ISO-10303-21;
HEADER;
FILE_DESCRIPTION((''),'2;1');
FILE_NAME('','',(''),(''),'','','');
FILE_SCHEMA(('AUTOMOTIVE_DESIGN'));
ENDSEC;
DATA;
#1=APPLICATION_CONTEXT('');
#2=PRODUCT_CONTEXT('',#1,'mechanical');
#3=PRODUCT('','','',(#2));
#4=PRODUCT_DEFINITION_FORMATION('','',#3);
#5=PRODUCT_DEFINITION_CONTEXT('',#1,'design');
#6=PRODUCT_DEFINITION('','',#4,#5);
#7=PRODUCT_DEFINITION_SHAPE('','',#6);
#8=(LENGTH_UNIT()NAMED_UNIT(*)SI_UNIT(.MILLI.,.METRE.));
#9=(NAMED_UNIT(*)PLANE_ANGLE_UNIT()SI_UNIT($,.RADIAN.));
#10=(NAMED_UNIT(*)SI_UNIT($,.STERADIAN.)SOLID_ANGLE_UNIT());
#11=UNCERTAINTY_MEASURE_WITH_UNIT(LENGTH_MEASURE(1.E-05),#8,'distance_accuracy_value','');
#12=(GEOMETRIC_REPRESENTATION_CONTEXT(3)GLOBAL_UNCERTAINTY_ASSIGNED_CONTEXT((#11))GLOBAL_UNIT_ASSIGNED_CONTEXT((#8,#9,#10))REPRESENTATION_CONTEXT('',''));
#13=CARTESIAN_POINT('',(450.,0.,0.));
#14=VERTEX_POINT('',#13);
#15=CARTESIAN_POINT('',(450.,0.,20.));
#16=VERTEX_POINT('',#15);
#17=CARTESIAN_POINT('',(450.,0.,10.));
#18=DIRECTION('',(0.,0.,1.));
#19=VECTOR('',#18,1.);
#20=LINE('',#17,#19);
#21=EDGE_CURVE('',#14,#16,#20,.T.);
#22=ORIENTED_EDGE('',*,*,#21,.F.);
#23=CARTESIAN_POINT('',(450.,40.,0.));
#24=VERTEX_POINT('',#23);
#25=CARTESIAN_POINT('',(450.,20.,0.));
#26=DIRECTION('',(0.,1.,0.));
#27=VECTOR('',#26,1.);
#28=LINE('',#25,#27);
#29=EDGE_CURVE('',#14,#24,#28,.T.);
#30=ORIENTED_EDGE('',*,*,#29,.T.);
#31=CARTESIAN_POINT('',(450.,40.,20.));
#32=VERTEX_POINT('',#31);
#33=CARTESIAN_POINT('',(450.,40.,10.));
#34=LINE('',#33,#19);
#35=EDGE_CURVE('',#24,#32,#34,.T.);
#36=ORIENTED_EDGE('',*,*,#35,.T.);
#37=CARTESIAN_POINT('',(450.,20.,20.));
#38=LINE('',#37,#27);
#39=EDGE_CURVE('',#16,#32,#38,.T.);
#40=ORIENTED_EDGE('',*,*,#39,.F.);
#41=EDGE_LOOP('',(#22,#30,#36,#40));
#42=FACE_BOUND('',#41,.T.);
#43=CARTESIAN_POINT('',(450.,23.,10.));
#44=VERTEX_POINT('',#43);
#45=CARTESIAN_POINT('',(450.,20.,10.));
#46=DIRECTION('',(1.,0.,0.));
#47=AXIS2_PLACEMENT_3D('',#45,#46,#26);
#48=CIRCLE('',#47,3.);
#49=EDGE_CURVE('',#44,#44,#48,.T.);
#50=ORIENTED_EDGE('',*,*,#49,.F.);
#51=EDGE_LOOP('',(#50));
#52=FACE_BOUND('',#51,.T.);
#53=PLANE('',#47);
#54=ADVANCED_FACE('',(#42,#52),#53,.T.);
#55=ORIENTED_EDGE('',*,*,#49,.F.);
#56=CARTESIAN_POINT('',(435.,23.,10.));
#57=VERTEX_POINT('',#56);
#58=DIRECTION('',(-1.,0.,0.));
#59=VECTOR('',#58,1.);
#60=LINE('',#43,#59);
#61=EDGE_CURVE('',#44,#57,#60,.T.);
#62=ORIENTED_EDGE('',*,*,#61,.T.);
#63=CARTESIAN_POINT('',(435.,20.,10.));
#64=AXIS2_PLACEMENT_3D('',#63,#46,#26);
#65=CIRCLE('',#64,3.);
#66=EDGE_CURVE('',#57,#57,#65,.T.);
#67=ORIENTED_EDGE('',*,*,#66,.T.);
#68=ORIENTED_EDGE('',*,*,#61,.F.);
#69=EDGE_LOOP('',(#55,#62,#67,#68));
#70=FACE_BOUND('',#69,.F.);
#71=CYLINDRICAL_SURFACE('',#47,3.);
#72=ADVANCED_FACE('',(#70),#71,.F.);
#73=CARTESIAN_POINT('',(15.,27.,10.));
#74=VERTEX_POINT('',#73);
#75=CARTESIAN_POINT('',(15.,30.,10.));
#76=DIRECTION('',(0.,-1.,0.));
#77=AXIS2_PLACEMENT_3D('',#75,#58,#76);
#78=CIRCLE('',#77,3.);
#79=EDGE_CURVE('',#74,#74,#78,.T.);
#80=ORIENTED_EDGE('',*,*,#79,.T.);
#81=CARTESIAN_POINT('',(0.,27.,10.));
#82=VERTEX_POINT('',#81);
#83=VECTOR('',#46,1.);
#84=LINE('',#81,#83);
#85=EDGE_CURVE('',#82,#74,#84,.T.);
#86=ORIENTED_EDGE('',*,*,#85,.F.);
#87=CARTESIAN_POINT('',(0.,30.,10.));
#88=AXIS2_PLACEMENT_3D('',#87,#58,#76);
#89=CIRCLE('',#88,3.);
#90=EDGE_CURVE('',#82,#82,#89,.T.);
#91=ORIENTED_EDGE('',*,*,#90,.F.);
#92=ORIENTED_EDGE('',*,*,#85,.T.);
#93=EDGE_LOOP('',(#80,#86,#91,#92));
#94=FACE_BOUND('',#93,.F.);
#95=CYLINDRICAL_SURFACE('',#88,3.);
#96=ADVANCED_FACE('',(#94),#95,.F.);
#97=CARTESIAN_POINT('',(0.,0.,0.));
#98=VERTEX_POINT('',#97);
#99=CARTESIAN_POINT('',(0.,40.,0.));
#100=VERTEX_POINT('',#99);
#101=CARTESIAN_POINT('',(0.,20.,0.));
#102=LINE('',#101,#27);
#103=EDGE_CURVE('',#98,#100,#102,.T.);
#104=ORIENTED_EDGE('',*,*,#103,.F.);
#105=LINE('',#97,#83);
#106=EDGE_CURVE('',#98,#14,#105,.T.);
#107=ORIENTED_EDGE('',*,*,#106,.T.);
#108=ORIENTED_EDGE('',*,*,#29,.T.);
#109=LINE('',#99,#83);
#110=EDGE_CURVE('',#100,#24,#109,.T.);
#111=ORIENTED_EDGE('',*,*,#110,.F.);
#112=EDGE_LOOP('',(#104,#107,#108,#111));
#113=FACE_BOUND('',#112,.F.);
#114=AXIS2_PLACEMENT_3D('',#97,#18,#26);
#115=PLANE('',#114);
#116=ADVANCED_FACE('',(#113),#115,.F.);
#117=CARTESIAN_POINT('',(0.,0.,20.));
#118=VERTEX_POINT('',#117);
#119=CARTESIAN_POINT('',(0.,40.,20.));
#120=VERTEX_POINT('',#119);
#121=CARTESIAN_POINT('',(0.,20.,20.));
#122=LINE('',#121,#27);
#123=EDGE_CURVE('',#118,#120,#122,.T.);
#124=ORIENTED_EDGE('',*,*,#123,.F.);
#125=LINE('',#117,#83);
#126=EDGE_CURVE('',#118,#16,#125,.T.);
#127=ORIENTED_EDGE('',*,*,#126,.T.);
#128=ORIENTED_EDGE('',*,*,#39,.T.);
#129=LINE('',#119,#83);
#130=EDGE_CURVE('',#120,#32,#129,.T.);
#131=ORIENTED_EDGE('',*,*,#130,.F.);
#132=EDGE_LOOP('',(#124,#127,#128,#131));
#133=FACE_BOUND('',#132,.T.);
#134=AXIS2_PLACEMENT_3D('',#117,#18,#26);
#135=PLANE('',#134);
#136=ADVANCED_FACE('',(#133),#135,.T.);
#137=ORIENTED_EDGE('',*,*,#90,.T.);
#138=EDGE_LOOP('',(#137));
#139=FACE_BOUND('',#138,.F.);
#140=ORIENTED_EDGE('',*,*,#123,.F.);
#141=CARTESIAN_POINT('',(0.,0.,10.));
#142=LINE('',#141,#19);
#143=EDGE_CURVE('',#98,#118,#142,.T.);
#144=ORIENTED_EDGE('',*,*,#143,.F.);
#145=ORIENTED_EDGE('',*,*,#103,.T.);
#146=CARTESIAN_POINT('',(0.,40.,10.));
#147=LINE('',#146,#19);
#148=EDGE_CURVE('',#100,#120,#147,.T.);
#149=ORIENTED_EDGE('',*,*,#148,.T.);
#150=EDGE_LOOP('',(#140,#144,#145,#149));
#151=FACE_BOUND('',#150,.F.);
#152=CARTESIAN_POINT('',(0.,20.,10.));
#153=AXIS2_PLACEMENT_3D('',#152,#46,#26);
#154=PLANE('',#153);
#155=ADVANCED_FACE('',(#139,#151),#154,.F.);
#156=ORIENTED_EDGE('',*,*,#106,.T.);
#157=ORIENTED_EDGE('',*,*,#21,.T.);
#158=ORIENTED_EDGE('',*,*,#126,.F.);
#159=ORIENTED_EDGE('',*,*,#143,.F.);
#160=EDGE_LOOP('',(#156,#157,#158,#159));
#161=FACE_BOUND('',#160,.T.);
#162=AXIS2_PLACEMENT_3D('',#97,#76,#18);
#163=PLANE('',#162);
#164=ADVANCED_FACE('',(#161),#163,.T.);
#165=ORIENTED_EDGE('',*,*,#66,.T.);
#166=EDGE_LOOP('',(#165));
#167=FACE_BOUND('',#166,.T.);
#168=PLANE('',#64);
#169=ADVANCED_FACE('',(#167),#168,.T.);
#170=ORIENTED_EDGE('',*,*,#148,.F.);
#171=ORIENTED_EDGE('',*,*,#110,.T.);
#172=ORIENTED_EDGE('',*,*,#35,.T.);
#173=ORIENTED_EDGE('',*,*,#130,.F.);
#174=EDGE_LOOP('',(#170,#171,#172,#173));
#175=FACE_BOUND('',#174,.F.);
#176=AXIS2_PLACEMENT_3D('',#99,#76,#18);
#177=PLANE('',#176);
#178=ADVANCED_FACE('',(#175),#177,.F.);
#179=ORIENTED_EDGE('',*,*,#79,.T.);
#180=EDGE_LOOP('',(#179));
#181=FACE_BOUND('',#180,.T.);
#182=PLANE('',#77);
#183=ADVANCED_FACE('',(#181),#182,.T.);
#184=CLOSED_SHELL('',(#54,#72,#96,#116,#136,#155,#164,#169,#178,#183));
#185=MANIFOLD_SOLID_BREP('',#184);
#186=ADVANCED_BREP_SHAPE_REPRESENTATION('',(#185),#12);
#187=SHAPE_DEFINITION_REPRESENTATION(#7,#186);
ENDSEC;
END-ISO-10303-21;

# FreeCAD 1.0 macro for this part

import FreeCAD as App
import Part
import Sketcher

V = App.Vector
Q = App.Units.Quantity

doc = App.newDocument("Part")
body = doc.addObject("PartDesign::Body", "Body")

# Sketch on YZ plane
sketch1 = body.newObject("Sketcher::SketchObject", "Sketch")
sketch1.AttachmentSupport = (doc.getObject("YZ_Plane"), [""])
sketch1.MapMode = "FlatFace"
sketch1.addGeometry(Part.LineSegment(V(0, 20, 0), V(0, 0, 0)), False)
sketch1.addGeometry(Part.LineSegment(V(0, 0, 0), V(40, 0, 0)), False)
sketch1.addGeometry(Part.LineSegment(V(40, 0, 0), V(40, 20, 0)), False)
sketch1.addGeometry(Part.LineSegment(V(40, 20, 0), V(0, 20, 0)), False)
sketch1.addConstraint(Sketcher.Constraint("Coincident", 0, 2, 1, 1))
sketch1.addConstraint(Sketcher.Constraint("Coincident", 1, 2, 2, 1))
sketch1.addConstraint(Sketcher.Constraint("Coincident", 2, 2, 3, 1))
sketch1.addConstraint(Sketcher.Constraint("Coincident", 3, 2, 0, 1))
sketch1.addConstraint(Sketcher.Constraint("Vertical", 0))
sketch1.addConstraint(Sketcher.Constraint("Horizontal", 1))
sketch1.addConstraint(Sketcher.Constraint("Vertical", 2))
sketch1.addConstraint(Sketcher.Constraint("Horizontal", 3))
sketch1.addConstraint(Sketcher.Constraint("Coincident", 0, 2, -1, 1))
sketch1.addConstraint(Sketcher.Constraint("DistanceX", 1, 1, 1, 2, Q("40 mm")))
sketch1.addConstraint(Sketcher.Constraint("DistanceY", 0, 2, 0, 1, Q("20 mm")))
pad1 = body.newObject("PartDesign::Pad", "Pad")
pad1.Profile = sketch1
pad1.Length = 450

# Sketch on YZ plane
sketch2 = body.newObject("Sketcher::SketchObject", "Sketch001")
sketch2.AttachmentSupport = (doc.getObject("YZ_Plane"), [""])
sketch2.MapMode = "FlatFace"
sketch2.AttachmentOffset = App.Placement(V(0, 0, 450), App.Rotation())
sketch2.addGeometry(Part.Circle(V(20, 10, 0), V(0, 0, 1), 3), False)
sketch2.addConstraint(Sketcher.Constraint("Diameter", 0, Q("6 mm")))
sketch2.addConstraint(Sketcher.Constraint("DistanceX", -1, 1, 0, 3, Q("20 mm")))
sketch2.addConstraint(Sketcher.Constraint("DistanceY", -1, 1, 0, 3, Q("10 mm")))
pocket1 = body.newObject("PartDesign::Pocket", "Pocket")
pocket1.Profile = sketch2
pocket1.Length = 15

# Sketch on YZ plane
sketch3 = body.newObject("Sketcher::SketchObject", "Sketch002")
sketch3.AttachmentSupport = (doc.getObject("YZ_Plane"), [""])
sketch3.MapMode = "FlatFace"
sketch3.addGeometry(Part.Circle(V(30, 10, 0), V(0, 0, 1), 3), False)
sketch3.addConstraint(Sketcher.Constraint("Diameter", 0, Q("6 mm")))
sketch3.addConstraint(Sketcher.Constraint("DistanceX", -1, 1, 0, 3, Q("30 mm")))
sketch3.addConstraint(Sketcher.Constraint("DistanceY", -1, 1, 0, 3, Q("10 mm")))
pocket2 = body.newObject("PartDesign::Pocket", "Pocket001")
pocket2.Profile = sketch3
pocket2.Length = 15
pocket2.Reversed = True

doc.recompute()
